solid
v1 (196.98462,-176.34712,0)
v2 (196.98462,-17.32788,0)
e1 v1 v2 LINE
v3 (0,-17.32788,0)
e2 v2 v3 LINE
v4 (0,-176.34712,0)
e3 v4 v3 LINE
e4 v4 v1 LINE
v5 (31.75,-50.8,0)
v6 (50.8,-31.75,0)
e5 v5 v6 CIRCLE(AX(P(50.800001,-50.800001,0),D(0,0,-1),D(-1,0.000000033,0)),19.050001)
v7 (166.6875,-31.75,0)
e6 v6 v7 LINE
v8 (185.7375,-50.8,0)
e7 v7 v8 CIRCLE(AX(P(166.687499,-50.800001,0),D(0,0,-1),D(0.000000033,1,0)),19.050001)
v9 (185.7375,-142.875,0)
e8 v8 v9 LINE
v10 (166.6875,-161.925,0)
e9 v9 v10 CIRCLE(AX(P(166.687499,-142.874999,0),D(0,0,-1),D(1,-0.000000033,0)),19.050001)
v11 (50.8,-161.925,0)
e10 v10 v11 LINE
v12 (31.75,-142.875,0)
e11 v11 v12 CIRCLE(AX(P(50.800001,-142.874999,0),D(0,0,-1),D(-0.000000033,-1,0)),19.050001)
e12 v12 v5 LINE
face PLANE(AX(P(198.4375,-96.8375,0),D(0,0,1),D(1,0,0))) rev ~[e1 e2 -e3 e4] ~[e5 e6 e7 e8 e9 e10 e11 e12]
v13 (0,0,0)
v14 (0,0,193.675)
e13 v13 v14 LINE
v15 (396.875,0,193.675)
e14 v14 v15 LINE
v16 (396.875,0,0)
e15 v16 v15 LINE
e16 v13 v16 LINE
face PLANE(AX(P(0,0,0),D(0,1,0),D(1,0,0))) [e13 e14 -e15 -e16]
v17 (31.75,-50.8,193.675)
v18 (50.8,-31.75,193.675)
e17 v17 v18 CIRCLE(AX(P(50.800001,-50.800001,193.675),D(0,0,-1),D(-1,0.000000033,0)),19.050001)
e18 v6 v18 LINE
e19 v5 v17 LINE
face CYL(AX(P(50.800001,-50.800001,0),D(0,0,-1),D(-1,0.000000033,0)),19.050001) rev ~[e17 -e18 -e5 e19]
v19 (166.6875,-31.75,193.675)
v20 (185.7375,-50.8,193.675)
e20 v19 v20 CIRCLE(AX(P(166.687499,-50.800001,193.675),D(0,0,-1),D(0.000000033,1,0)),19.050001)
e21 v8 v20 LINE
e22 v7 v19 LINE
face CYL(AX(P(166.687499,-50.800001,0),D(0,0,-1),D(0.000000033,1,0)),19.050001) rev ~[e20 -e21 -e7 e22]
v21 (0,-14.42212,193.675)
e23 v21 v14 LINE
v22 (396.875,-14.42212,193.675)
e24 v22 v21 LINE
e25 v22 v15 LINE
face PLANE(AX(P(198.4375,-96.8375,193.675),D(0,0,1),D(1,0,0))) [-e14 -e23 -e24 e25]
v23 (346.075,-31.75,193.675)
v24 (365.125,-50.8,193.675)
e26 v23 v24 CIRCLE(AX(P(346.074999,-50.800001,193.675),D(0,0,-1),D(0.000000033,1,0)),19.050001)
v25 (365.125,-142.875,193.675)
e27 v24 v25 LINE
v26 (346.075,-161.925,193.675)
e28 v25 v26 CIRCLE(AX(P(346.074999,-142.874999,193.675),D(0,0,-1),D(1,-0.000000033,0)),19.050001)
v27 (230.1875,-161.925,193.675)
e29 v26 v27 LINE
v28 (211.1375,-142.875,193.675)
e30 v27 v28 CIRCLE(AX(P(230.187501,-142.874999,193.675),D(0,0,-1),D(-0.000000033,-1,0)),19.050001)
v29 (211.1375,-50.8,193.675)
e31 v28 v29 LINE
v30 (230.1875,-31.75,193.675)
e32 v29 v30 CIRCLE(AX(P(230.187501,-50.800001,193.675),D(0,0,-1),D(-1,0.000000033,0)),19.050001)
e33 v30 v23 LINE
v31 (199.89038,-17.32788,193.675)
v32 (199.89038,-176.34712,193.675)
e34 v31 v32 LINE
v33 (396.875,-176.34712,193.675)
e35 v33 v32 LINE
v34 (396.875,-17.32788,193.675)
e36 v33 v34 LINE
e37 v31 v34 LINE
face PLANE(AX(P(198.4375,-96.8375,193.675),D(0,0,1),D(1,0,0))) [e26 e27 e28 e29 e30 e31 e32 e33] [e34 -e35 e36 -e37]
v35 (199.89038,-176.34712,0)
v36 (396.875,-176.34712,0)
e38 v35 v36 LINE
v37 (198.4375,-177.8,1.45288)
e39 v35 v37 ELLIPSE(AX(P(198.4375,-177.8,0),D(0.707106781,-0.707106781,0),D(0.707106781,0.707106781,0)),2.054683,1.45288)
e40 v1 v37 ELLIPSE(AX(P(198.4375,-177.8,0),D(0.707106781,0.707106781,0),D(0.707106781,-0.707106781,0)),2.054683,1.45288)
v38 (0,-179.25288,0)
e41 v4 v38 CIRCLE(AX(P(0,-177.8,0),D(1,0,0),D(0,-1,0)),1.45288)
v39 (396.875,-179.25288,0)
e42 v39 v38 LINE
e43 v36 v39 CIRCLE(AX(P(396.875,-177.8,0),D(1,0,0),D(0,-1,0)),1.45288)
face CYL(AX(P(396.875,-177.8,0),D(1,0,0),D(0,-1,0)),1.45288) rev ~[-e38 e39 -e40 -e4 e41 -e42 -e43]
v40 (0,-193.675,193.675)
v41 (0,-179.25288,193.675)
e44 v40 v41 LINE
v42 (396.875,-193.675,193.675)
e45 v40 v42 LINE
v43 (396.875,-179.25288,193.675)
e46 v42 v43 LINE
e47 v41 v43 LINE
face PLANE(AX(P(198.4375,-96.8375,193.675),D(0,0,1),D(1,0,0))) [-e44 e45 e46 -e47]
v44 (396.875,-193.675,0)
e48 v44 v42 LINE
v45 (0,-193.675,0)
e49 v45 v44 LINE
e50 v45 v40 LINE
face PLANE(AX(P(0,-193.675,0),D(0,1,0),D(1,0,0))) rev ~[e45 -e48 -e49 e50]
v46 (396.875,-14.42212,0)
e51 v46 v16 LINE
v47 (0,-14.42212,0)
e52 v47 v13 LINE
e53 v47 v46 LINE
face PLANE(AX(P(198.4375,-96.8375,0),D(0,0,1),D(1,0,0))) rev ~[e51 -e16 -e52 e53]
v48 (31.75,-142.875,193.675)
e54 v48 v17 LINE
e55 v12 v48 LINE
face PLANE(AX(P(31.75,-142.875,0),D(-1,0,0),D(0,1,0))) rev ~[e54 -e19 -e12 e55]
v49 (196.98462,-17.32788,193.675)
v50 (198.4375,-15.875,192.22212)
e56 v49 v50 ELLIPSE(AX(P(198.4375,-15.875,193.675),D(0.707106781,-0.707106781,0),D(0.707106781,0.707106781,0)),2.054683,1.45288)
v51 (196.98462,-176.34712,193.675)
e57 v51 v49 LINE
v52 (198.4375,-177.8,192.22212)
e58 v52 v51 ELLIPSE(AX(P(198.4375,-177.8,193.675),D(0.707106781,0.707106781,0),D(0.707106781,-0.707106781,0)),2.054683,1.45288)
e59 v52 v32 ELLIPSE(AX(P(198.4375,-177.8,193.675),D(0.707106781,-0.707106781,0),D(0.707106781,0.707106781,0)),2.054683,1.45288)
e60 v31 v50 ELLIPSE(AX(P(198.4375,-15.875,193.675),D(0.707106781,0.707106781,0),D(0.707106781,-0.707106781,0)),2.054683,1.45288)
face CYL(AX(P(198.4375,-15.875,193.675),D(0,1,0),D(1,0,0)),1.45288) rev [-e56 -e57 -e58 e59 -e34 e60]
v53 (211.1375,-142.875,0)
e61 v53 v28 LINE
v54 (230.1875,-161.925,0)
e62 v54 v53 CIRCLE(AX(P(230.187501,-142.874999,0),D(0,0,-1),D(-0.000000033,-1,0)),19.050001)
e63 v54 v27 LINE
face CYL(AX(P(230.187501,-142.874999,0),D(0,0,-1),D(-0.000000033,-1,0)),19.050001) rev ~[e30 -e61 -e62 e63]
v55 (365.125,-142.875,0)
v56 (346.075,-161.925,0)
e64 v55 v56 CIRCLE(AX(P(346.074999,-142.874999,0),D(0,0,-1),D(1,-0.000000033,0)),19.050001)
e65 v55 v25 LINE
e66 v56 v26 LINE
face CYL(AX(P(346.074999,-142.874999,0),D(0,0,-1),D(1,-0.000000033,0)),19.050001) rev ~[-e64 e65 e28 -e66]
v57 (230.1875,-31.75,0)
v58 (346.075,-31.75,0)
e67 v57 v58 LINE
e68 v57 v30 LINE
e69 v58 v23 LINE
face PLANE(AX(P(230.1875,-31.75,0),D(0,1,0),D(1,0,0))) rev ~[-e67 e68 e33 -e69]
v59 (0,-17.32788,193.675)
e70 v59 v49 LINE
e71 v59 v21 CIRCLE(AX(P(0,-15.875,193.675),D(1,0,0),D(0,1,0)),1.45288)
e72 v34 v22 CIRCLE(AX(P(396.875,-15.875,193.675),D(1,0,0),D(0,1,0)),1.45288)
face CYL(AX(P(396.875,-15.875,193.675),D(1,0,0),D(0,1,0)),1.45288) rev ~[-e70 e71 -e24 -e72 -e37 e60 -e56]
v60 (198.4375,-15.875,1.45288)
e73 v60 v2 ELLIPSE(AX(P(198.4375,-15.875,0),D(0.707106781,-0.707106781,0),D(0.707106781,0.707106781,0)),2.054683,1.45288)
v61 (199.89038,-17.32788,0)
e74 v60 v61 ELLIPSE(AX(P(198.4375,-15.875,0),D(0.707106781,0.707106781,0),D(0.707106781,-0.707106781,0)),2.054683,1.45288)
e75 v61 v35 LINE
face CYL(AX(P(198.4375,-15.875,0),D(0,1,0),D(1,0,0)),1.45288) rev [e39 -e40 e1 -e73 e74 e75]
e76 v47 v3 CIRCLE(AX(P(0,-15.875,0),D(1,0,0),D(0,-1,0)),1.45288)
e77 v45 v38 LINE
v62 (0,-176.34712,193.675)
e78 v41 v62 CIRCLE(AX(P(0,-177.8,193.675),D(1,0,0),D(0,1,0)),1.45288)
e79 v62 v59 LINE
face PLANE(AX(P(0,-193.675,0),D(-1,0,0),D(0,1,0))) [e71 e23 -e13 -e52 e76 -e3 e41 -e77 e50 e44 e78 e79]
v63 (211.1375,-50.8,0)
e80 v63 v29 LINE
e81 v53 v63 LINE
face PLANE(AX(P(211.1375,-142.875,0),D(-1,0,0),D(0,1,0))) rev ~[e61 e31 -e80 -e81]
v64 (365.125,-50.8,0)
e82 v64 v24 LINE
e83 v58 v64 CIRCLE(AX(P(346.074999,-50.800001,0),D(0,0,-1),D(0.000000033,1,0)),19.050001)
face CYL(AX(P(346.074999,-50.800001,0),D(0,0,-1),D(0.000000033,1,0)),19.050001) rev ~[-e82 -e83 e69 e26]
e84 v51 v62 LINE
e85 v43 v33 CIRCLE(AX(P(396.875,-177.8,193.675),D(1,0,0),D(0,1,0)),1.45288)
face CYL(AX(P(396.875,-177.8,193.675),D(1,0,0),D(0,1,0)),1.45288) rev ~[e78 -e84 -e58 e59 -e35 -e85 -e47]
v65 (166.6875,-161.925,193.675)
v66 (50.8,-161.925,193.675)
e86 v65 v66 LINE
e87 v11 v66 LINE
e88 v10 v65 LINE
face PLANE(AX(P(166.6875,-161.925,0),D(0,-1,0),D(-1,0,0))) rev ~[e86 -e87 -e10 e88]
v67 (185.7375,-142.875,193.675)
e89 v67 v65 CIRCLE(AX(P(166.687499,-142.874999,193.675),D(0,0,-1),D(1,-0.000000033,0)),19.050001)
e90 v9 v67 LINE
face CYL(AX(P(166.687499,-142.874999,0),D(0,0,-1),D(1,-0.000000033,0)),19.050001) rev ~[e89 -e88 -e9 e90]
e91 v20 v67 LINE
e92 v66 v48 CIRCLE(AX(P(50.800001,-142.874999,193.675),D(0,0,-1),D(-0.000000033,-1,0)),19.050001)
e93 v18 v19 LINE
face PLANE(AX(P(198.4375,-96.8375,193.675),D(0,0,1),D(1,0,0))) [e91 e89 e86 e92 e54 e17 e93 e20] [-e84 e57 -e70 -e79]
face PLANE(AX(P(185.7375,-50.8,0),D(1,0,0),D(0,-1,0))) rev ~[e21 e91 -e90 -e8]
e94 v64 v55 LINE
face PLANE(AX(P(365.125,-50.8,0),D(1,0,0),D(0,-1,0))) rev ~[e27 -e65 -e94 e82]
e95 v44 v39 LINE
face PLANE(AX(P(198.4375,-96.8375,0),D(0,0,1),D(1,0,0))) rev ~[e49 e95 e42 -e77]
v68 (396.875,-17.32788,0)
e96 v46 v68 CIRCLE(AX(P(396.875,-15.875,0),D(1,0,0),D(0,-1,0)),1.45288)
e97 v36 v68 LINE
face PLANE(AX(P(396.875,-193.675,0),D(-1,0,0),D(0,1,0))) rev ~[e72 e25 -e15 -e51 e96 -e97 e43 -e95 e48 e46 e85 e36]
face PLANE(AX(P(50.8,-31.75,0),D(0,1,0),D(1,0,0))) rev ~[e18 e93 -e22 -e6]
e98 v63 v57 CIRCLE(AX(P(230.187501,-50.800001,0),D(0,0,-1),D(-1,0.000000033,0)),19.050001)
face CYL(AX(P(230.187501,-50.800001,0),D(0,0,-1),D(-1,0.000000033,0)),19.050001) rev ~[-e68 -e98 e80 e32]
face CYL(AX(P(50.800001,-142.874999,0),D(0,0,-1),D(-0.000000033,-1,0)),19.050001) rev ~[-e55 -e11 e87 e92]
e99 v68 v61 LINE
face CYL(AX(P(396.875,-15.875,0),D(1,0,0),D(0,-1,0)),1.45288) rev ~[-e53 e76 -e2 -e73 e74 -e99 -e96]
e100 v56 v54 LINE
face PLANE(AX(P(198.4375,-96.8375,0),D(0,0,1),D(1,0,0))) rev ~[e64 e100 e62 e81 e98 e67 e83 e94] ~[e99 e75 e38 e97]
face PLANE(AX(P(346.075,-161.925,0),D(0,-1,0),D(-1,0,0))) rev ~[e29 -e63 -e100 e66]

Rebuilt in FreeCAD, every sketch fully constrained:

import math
import FreeCAD as App
import Part
import Sketcher
from FreeCAD import Vector
Q = App.Units.Quantity

doc = App.newDocument("Part")
body = doc.addObject("PartDesign::Body", "Body")

sketch1 = body.newObject("Sketcher::SketchObject", "Sketch")
sketch1.AttachmentSupport = (doc.getObject("XY_Plane"), [""])
sketch1.MapMode = "FlatFace"
sketch1.addGeometry([
    Part.LineSegment(Vector(0, 0, 0), Vector(0, -194, 0)),
    Part.LineSegment(Vector(0, -194, 0), Vector(397, -194, 0)),
    Part.LineSegment(Vector(397, -194, 0), Vector(397, 0, 0)),
    Part.LineSegment(Vector(397, 0, 0), Vector(0, 0, 0)),
    Part.LineSegment(Vector(32, -143, 0), Vector(32, -51, 0)),
    Part.ArcOfCircle(Part.Circle(Vector(51, -51, 0), Vector(0, 0, 1), 19), math.radians(90), math.radians(180)),
    Part.LineSegment(Vector(51, -32, 0), Vector(167, -32, 0)),
    Part.ArcOfCircle(Part.Circle(Vector(167, -51, 0), Vector(0, 0, 1), 19), math.radians(0), math.radians(90)),
    Part.LineSegment(Vector(186, -51, 0), Vector(186, -143, 0)),
    Part.ArcOfCircle(Part.Circle(Vector(167, -143, 0), Vector(0, 0, 1), 19), math.radians(-90), math.radians(0)),
    Part.LineSegment(Vector(167, -162, 0), Vector(51, -162, 0)),
    Part.ArcOfCircle(Part.Circle(Vector(51, -143, 0), Vector(0, 0, 1), 19), math.radians(-180), math.radians(-90)),
    Part.LineSegment(Vector(365, -51, 0), Vector(365, -143, 0)),
    Part.ArcOfCircle(Part.Circle(Vector(346, -143, 0), Vector(0, 0, 1), 19), math.radians(-90), math.radians(0)),
    Part.LineSegment(Vector(346, -162, 0), Vector(230, -162, 0)),
    Part.ArcOfCircle(Part.Circle(Vector(230, -143, 0), Vector(0, 0, 1), 19), math.radians(-180), math.radians(-90)),
    Part.LineSegment(Vector(211, -143, 0), Vector(211, -51, 0)),
    Part.ArcOfCircle(Part.Circle(Vector(230, -51, 0), Vector(0, 0, 1), 19), math.radians(90), math.radians(180)),
    Part.LineSegment(Vector(230, -32, 0), Vector(346, -32, 0)),
    Part.ArcOfCircle(Part.Circle(Vector(346, -51, 0), Vector(0, 0, 1), 19), math.radians(0), math.radians(90)),
], False)
sketch1.addConstraint([
    Sketcher.Constraint("Coincident", 0, 2, 1, 1),
    Sketcher.Constraint("Coincident", 1, 2, 2, 1),
    Sketcher.Constraint("Coincident", 2, 2, 3, 1),
    Sketcher.Constraint("Coincident", 3, 2, 0, 1),
    Sketcher.Constraint("Tangent", 4, 2, 5, 2),
    Sketcher.Constraint("Tangent", 5, 1, 6, 1),
    Sketcher.Constraint("Tangent", 6, 2, 7, 2),
    Sketcher.Constraint("Tangent", 7, 1, 8, 1),
    Sketcher.Constraint("Tangent", 8, 2, 9, 2),
    Sketcher.Constraint("Tangent", 9, 1, 10, 1),
    Sketcher.Constraint("Tangent", 10, 2, 11, 2),
    Sketcher.Constraint("Tangent", 11, 1, 4, 1),
    Sketcher.Constraint("Tangent", 12, 2, 13, 2),
    Sketcher.Constraint("Tangent", 13, 1, 14, 1),
    Sketcher.Constraint("Tangent", 14, 2, 15, 2),
    Sketcher.Constraint("Tangent", 15, 1, 16, 1),
    Sketcher.Constraint("Tangent", 16, 2, 17, 2),
    Sketcher.Constraint("Tangent", 17, 1, 18, 1),
    Sketcher.Constraint("Tangent", 18, 2, 19, 2),
    Sketcher.Constraint("Tangent", 19, 1, 12, 1),
    Sketcher.Constraint("Vertical", 0),
    Sketcher.Constraint("Horizontal", 1),
    Sketcher.Constraint("Vertical", 2),
    Sketcher.Constraint("Horizontal", 3),
    Sketcher.Constraint("Vertical", 4),
    Sketcher.Constraint("Horizontal", 6),
    Sketcher.Constraint("Vertical", 8),
    Sketcher.Constraint("Horizontal", 10),
    Sketcher.Constraint("Vertical", 12),
    Sketcher.Constraint("Horizontal", 14),
    Sketcher.Constraint("Vertical", 16),
    Sketcher.Constraint("Horizontal", 18),
    Sketcher.Constraint("Coincident", 3, 2, -1, 1),
    Sketcher.Constraint("Equal", 5, 7),
    Sketcher.Constraint("Equal", 7, 9),
    Sketcher.Constraint("Equal", 9, 11),
    Sketcher.Constraint("Equal", 11, 13),
    Sketcher.Constraint("Equal", 13, 15),
    Sketcher.Constraint("Equal", 15, 17),
    Sketcher.Constraint("Equal", 17, 19),
    Sketcher.Constraint("Horizontal", 11, 3, 13, 3),
    Sketcher.Constraint("Horizontal", 7, 3, 17, 3),
    Sketcher.Constraint("Equal", 10, 14),
    Sketcher.Constraint("Radius", 5, Q("0.75 in")),
    Sketcher.Constraint("DistanceX", -1, 1, 5, 3, Q("2 in")),
    Sketcher.Constraint("DistanceY", 5, 3, -1, 1, Q("2 in")),
    Sketcher.Constraint("DistanceY", 0, 2, 11, 3, Q("2 in")),
    Sketcher.Constraint("DistanceX", 13, 3, 1, 2, Q("2 in")),
    Sketcher.Constraint("DistanceX", 8, 2, 15, 1, Q("1 in")),
    Sketcher.Constraint("DistanceX", 1, 1, 1, 2, Q("15.625 in")),
    Sketcher.Constraint("DistanceY", 0, 2, 0, 1, Q("7.625 in")),
])
pad1 = body.newObject("PartDesign::Pad", "Pad")
pad1.Profile = sketch1
pad1.Length = Q("7.625 in")

sketch2 = body.newObject("Sketcher::SketchObject", "Sketch001")
sketch2.AttachmentSupport = (doc.getObject("YZ_Plane"), [""])
sketch2.MapMode = "FlatFace"
sketch2.AttachmentOffset = App.Placement(Vector(0, 0, 15.625 * 25.4), App.Rotation())
sketch2.addGeometry([
    Part.Circle(Vector(-177.8, 193.7, 0), Vector(0, 0, 1), 1.5),
    Part.Circle(Vector(-15.9, 193.7, 0), Vector(0, 0, 1), 1.5),
    Part.Circle(Vector(-15.9, 0, 0), Vector(0, 0, 1), 1.5),
    Part.Circle(Vector(-177.8, 0, 0), Vector(0, 0, 1), 1.5),
], False)
sketch2.addConstraint([
    Sketcher.Constraint("Equal", 0, 1),
    Sketcher.Constraint("Equal", 1, 2),
    Sketcher.Constraint("Equal", 2, 3),
    Sketcher.Constraint("PointOnObject", 2, 3, -1),
    Sketcher.Constraint("PointOnObject", 3, 3, -1),
    Sketcher.Constraint("Horizontal", 0, 3, 1, 3),
    Sketcher.Constraint("Vertical", 1, 3, 2, 3),
    Sketcher.Constraint("Vertical", 0, 3, 3, 3),
    Sketcher.Constraint("DistanceX", 0, 3, -1, 1, Q("7 in")),
    Sketcher.Constraint("Diameter", 0, Q("0.1144 in")),
    Sketcher.Constraint("DistanceY", -1, 1, 0, 3, Q("7.625 in")),
    Sketcher.Constraint("DistanceX", 1, 3, -1, 1, Q("0.625 in")),
])
pocket1 = body.newObject("PartDesign::Pocket", "Pocket")
pocket1.Profile = sketch2
pocket1.Length = Q("15.625 in")

sketch3 = body.newObject("Sketcher::SketchObject", "Sketch002")
sketch3.AttachmentSupport = (doc.getObject("XZ_Plane"), [""])
sketch3.MapMode = "FlatFace"
sketch3.AttachmentOffset = App.Placement(Vector(0, 0, 0.625 * 25.4), App.Rotation())
sketch3.addGeometry([
    Part.Circle(Vector(198.4, 193.7, 0), Vector(0, 0, 1), 1.5),
    Part.Circle(Vector(198.4, 0, 0), Vector(0, 0, 1), 1.5),
], False)
sketch3.addConstraint([
    Sketcher.Constraint("Equal", 0, 1),
    Sketcher.Constraint("PointOnObject", 1, 3, -1),
    Sketcher.Constraint("Vertical", 0, 3, 1, 3),
    Sketcher.Constraint("Diameter", 0, Q("0.1144 in")),
    Sketcher.Constraint("DistanceX", -1, 1, 0, 3, Q("7.8125 in")),
    Sketcher.Constraint("DistanceY", -1, 1, 0, 3, Q("7.625 in")),
])
pocket2 = body.newObject("PartDesign::Pocket", "Pocket001")
pocket2.Profile = sketch3
pocket2.Length = Q("6.375 in")
pocket2.Reversed = True

doc.recompute()
